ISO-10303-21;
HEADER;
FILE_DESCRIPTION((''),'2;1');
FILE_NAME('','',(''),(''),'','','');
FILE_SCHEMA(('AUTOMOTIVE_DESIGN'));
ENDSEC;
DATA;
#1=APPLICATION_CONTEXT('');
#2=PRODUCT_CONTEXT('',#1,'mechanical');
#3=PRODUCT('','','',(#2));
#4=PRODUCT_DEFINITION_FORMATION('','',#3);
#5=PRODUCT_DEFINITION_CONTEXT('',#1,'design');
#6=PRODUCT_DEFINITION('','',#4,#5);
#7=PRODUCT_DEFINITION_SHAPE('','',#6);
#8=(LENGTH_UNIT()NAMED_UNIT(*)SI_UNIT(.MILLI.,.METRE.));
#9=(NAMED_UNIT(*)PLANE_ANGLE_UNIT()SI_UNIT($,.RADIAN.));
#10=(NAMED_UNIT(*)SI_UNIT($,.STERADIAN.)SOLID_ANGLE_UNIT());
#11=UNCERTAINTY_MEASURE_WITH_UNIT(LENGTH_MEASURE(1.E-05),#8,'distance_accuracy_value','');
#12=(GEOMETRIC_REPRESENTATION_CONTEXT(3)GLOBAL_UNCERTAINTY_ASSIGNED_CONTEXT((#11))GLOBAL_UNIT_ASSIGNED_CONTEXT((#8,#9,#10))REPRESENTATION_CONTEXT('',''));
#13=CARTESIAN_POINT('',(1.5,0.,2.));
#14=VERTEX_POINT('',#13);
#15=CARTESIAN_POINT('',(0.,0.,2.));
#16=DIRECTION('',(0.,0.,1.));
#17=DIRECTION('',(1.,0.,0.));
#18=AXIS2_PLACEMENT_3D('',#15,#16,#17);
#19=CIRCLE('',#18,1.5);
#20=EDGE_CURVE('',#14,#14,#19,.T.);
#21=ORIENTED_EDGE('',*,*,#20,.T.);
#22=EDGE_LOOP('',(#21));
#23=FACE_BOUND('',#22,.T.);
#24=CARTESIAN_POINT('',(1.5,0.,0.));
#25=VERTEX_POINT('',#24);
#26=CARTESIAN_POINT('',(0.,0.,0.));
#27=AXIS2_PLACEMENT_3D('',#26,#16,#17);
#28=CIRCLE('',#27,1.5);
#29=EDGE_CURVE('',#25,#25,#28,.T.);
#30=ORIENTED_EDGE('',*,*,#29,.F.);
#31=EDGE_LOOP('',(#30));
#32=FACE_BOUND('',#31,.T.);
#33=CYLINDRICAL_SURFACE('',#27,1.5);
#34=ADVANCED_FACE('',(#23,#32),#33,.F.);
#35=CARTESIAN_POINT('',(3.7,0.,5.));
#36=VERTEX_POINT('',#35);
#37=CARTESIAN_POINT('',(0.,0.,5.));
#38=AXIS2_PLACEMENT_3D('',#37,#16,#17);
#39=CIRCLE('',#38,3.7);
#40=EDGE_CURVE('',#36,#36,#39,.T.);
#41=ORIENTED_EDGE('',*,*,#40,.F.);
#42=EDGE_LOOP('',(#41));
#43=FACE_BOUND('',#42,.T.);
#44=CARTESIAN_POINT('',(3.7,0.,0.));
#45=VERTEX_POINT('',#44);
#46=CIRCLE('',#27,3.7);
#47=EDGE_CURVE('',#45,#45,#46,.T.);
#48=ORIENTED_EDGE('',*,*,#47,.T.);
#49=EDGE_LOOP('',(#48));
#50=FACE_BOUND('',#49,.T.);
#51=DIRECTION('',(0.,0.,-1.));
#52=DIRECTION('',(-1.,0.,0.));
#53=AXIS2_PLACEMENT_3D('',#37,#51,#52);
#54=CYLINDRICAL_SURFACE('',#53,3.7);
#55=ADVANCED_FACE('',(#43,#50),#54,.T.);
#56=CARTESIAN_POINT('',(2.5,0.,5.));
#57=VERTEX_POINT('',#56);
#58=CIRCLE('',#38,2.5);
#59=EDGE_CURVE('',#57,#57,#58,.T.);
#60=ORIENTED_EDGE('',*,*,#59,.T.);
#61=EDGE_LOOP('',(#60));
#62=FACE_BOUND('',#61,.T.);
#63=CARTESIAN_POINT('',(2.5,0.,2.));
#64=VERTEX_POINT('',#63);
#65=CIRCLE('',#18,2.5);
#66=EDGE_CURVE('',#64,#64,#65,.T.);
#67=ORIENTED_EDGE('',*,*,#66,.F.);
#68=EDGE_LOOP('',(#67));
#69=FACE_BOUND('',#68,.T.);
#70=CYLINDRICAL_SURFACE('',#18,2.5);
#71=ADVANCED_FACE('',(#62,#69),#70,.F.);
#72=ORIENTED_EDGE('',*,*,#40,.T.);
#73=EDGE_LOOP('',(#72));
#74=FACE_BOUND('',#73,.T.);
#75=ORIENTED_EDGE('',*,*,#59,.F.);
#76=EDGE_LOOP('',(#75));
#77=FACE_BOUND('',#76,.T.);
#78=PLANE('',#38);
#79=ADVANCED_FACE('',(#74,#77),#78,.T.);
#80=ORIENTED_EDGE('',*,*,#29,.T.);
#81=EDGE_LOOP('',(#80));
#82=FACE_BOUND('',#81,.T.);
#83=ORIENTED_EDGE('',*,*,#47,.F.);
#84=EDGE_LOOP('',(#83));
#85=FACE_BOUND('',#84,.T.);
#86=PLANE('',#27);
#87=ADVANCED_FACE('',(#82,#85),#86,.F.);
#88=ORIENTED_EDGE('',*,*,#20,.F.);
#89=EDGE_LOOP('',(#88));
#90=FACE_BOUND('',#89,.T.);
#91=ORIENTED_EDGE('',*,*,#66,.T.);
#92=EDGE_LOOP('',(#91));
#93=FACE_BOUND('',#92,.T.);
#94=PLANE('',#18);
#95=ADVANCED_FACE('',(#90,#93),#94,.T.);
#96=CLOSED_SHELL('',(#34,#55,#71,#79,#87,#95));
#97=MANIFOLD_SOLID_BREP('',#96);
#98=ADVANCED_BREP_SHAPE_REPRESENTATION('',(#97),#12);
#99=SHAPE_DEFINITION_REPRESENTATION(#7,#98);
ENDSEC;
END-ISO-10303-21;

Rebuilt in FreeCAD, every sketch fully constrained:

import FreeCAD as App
import Part
import Sketcher
from FreeCAD import Vector

doc = App.newDocument("Part")
body = doc.addObject("PartDesign::Body", "Body")

# Sketch on XY plane
sketch1 = body.newObject("Sketcher::SketchObject", "Sketch")
sketch1.AttachmentSupport = (doc.getObject("XY_Plane"), [""])
sketch1.MapMode = "FlatFace"
sketch1.addGeometry(Part.Circle(Vector(0, 0, 0), Vector(0, 0, 1), 3.7), False)
sketch1.addConstraint(Sketcher.Constraint("Coincident", 0, 3, -1, 1))
sketch1.addConstraint(Sketcher.Constraint("Diameter", 0, 7.4))
pad1 = body.newObject("PartDesign::Pad", "Pad")
pad1.Profile = sketch1
pad1.Length = 5

# Sketch on XY plane
sketch2 = body.newObject("Sketcher::SketchObject", "Sketch001")
sketch2.AttachmentSupport = (doc.getObject("XY_Plane"), [""])
sketch2.MapMode = "FlatFace"
sketch2.AttachmentOffset = App.Placement(Vector(0, 0, 5), App.Rotation())
sketch2.addGeometry(Part.Circle(Vector(0, 0, 0), Vector(0, 0, 1), 2.5), False)
sketch2.addConstraint(Sketcher.Constraint("Coincident", 0, 3, -1, 1))
sketch2.addConstraint(Sketcher.Constraint("Diameter", 0, 5.0))
pocket1 = body.newObject("PartDesign::Pocket", "Pocket")
pocket1.Profile = sketch2
pocket1.Length = 3

# Sketch on XY plane
sketch3 = body.newObject("Sketcher::SketchObject", "Sketch002")
sketch3.AttachmentSupport = (doc.getObject("XY_Plane"), [""])
sketch3.MapMode = "FlatFace"
sketch3.AttachmentOffset = App.Placement(Vector(0, 0, 2), App.Rotation())
sketch3.addGeometry(Part.Circle(Vector(0, 0, 0), Vector(0, 0, 1), 1.5), False)
sketch3.addConstraint(Sketcher.Constraint("Coincident", 0, 3, -1, 1))
sketch3.addConstraint(Sketcher.Constraint("Diameter", 0, 3.0))
pocket2 = body.newObject("PartDesign::Pocket", "Pocket001")
pocket2.Profile = sketch3
pocket2.Length = 2

doc.recompute()
